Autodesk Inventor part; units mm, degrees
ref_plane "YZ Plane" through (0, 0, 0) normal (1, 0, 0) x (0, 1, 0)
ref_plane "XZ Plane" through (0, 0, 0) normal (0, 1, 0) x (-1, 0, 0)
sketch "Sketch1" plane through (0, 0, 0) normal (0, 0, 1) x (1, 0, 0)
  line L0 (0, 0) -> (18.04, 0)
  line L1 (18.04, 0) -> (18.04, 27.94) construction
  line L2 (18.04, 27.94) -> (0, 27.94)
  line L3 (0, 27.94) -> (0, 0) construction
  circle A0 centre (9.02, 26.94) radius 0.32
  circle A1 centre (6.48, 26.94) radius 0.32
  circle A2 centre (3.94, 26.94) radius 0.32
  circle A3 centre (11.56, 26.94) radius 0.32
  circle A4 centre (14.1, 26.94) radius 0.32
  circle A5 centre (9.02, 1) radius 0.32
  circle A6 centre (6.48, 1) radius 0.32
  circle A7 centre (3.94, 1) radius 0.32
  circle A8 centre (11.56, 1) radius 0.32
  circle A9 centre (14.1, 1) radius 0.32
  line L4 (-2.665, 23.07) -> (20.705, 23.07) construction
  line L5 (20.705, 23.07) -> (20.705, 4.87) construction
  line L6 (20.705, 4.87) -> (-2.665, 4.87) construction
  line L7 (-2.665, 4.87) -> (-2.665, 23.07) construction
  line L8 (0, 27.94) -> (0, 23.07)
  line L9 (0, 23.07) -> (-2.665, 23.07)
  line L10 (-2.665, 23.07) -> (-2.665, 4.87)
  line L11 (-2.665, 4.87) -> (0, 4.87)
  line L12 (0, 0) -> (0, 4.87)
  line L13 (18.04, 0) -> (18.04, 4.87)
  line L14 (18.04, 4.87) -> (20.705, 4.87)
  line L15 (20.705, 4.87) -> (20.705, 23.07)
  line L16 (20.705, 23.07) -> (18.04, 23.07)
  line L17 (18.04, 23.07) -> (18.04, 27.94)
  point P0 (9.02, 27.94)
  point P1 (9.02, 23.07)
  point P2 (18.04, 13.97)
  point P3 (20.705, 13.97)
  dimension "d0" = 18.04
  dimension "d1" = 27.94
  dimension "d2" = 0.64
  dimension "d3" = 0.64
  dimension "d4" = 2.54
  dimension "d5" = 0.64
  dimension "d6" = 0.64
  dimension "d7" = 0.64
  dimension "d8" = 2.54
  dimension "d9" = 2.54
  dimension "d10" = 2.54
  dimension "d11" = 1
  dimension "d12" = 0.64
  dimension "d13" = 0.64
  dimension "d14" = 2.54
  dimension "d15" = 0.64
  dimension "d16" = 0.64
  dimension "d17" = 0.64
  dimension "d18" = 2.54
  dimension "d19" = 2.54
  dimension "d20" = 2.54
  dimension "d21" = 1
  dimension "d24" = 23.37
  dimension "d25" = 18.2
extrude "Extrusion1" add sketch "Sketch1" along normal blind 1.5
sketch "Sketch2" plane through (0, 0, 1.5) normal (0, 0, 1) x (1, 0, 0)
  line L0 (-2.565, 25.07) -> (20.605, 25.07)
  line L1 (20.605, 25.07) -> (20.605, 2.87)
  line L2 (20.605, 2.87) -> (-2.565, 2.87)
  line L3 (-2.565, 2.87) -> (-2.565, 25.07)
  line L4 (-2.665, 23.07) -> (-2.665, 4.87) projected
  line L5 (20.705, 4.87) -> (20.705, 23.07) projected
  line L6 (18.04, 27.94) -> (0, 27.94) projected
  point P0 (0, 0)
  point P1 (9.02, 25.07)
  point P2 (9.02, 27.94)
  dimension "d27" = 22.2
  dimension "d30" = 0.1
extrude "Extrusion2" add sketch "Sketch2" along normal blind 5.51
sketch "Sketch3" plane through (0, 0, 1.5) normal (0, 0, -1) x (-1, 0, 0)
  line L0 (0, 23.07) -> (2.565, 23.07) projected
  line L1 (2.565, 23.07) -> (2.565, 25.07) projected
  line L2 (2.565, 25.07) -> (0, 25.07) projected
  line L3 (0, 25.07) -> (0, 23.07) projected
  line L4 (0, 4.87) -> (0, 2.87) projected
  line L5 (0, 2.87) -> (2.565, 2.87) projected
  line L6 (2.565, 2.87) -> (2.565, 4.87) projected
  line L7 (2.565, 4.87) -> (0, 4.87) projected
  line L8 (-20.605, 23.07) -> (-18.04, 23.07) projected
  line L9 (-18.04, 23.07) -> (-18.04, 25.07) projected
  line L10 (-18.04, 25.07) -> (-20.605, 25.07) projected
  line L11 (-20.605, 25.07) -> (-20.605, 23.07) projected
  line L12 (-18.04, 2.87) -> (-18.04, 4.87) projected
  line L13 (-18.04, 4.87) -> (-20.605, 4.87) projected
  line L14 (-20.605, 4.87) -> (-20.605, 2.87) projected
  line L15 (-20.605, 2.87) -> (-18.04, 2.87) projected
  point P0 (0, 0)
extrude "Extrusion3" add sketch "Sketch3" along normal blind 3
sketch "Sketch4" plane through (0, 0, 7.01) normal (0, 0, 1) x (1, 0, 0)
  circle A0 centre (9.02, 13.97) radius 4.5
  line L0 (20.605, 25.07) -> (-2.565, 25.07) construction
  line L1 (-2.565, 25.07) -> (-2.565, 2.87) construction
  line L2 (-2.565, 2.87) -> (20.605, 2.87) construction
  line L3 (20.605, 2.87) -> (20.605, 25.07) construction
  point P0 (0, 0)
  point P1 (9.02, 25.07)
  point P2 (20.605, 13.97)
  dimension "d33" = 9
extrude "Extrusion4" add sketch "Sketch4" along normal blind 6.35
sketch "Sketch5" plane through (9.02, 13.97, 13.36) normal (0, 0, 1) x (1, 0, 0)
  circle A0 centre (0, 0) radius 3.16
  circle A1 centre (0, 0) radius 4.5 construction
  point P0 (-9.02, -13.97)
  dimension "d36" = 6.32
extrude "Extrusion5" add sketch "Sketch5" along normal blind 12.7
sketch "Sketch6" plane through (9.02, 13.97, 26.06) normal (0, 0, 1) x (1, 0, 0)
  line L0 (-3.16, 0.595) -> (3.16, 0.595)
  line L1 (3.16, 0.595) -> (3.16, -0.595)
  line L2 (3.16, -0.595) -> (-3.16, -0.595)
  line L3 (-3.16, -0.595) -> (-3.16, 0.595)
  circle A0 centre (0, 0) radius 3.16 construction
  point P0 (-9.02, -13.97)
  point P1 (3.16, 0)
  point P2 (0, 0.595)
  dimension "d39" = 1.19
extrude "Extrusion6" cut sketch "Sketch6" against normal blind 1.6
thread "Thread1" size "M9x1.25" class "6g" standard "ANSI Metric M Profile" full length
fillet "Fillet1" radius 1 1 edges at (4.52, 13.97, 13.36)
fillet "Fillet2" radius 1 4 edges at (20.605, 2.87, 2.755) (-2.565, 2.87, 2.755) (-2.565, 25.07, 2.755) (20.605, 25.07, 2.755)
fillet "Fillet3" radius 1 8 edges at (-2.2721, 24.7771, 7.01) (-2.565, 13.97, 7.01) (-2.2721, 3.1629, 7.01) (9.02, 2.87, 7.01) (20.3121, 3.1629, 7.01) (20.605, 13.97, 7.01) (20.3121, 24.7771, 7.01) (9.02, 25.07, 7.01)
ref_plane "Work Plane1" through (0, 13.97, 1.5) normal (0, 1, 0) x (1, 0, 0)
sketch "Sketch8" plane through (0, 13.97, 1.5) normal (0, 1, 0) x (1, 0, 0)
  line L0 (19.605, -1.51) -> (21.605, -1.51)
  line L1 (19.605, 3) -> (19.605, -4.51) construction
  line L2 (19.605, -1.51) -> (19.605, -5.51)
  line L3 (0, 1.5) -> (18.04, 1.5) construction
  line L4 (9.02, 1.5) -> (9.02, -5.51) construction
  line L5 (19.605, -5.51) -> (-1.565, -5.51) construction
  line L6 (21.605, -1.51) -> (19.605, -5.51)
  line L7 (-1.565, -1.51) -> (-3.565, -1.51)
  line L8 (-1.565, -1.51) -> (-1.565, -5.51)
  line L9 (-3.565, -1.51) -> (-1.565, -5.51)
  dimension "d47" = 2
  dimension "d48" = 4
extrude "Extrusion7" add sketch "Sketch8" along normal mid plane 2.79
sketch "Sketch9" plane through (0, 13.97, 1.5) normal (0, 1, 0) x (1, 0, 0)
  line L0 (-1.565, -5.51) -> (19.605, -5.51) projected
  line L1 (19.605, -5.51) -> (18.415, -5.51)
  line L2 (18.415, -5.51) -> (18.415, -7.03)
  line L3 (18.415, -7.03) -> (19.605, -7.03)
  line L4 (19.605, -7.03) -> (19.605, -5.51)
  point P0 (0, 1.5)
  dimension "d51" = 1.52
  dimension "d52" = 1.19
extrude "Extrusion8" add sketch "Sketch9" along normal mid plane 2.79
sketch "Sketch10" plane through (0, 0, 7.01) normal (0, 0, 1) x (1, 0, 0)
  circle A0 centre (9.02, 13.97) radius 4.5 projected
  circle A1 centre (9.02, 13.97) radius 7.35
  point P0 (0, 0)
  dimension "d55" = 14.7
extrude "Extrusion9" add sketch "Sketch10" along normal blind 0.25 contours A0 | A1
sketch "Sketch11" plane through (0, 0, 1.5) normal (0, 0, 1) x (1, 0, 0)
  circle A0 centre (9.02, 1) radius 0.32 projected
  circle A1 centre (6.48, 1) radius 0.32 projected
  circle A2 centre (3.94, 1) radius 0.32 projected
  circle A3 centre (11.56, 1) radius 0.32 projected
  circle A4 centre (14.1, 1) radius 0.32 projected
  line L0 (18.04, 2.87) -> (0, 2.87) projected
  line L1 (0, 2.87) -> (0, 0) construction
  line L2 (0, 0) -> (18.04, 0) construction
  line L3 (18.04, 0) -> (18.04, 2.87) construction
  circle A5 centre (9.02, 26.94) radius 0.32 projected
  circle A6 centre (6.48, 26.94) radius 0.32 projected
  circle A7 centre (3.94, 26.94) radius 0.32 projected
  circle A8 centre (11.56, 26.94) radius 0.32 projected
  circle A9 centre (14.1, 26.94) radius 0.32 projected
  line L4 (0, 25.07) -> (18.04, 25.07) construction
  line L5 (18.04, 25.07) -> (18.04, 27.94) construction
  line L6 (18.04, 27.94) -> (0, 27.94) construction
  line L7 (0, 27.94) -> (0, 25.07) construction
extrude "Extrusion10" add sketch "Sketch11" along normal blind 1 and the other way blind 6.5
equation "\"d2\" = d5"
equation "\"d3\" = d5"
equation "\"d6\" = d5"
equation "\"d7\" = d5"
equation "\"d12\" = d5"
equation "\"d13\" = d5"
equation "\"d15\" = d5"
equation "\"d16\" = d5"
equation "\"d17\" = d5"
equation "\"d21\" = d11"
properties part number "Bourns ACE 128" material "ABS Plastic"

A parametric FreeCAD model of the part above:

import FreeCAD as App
import Part
import Sketcher

V = App.Vector


def edges_at(feature, points):
    """Names of the edges that pass closest to the given points."""
    edges = feature.Shape.Edges
    near = lambda p: min(range(len(edges)), key=lambda i: edges[i].distToShape(Part.Vertex(*p))[0])
    return sorted({f"Edge{near(p) + 1}" for p in points})

doc = App.newDocument("Part")
params = doc.addObject("Spreadsheet::Sheet", "Params")
for row, (alias, value) in enumerate([
    ("sketch1_diameter", "0.64 mm"),
    ("sketch1_height", "18.2 mm"),
    ("sketch1_width", "18.04 mm"),
    ("pad1_length", "1.5 mm"),
    ("sketch2_height", "22.2 mm"),
    ("sketch2_width", "23.17 mm"),
    ("pad2_length", "5.51 mm"),
    ("sketch3_height", "2 mm"),
    ("pad3_length", "3 mm"),
    ("sketch4_diameter", "9 mm"),
    ("pad4_length", "6.35 mm"),
    ("sketch5_diameter", "6.32 mm"),
    ("pad5_length", "12.7 mm"),
    ("sketch6_height", "1.19 mm"),
    ("sketch6_width", "6.32 mm"),
    ("pocket1_length", "1.6 mm"),
    ("fillet_radius", "1 mm"),
    ("fillet2_radius", "1 mm"),
    ("fillet3_radius", "1 mm"),
    ("sketch7_width", "2 mm"),
    ("sketch7_height", "4 mm"),
    ("pad6_length", "2.79 mm"),
    ("sketch8_width", "1.19 mm"),
    ("sketch8_height", "1.52 mm"),
    ("pad7_length", "2.79 mm"),
    ("sketch9_diameter", "14.7 mm"),
    ("pad8_length", "0.25 mm"),
    ("sketch10_diameter", "0.64 mm"),
    ("pad9_length", "1 mm"),
    ("pad9_length2", "6.5 mm"),
], start=1):
    params.set(f"A{row}", alias)
    params.set(f"B{row}", "=" + value)
    params.setAlias(f"B{row}", alias)

body = doc.addObject("PartDesign::Body", "Body")

sketch1 = doc.addObject("Sketcher::SketchObject", "Sketch")
body.addObject(sketch1)
sketch1.AttachmentSupport = (doc.XY_Plane, [""])
sketch1.MapMode = "FlatFace"
sketch1.addGeometry([
    Part.LineSegment(V(0, 4.87, 0), V(0, 0, 0)),
    Part.LineSegment(V(0, 0, 0), V(18.04, 0, 0)),
    Part.LineSegment(V(18.04, 0, 0), V(18.04, 4.87, 0)),
    Part.LineSegment(V(18.04, 4.87, 0), V(20.705, 4.87, 0)),
    Part.LineSegment(V(20.705, 4.87, 0), V(20.705, 23.07, 0)),
    Part.LineSegment(V(20.705, 23.07, 0), V(18.04, 23.07, 0)),
    Part.LineSegment(V(18.04, 23.07, 0), V(18.04, 27.94, 0)),
    Part.LineSegment(V(18.04, 27.94, 0), V(0, 27.94, 0)),
    Part.LineSegment(V(0, 27.94, 0), V(0, 23.07, 0)),
    Part.LineSegment(V(0, 23.07, 0), V(-2.665, 23.07, 0)),
    Part.LineSegment(V(-2.665, 23.07, 0), V(-2.665, 4.87, 0)),
    Part.LineSegment(V(-2.665, 4.87, 0), V(0, 4.87, 0)),
    Part.Circle(V(3.94, 1, 0), V(0, 0, 1), 0.32),
    Part.Circle(V(6.48, 1, 0), V(0, 0, 1), 0.32),
    Part.Circle(V(9.02, 1, 0), V(0, 0, 1), 0.32),
    Part.Circle(V(11.56, 1, 0), V(0, 0, 1), 0.32),
    Part.Circle(V(14.1, 1, 0), V(0, 0, 1), 0.32),
    Part.Circle(V(3.94, 26.94, 0), V(0, 0, 1), 0.32),
    Part.Circle(V(6.48, 26.94, 0), V(0, 0, 1), 0.32),
    Part.Circle(V(9.02, 26.94, 0), V(0, 0, 1), 0.32),
    Part.Circle(V(11.56, 26.94, 0), V(0, 0, 1), 0.32),
    Part.Circle(V(14.1, 26.94, 0), V(0, 0, 1), 0.32),
], False)
sketch1.addConstraint([
    Sketcher.Constraint("Coincident", 0, 2, 1, 1),
    Sketcher.Constraint("Coincident", 1, 2, 2, 1),
    Sketcher.Constraint("Coincident", 2, 2, 3, 1),
    Sketcher.Constraint("Coincident", 3, 2, 4, 1),
    Sketcher.Constraint("Coincident", 4, 2, 5, 1),
    Sketcher.Constraint("Coincident", 5, 2, 6, 1),
    Sketcher.Constraint("Coincident", 6, 2, 7, 1),
    Sketcher.Constraint("Coincident", 7, 2, 8, 1),
    Sketcher.Constraint("Coincident", 8, 2, 9, 1),
    Sketcher.Constraint("Coincident", 9, 2, 10, 1),
    Sketcher.Constraint("Coincident", 10, 2, 11, 1),
    Sketcher.Constraint("Coincident", 11, 2, 0, 1),
    Sketcher.Constraint("Vertical", 0),
    Sketcher.Constraint("Horizontal", 1),
    Sketcher.Constraint("Vertical", 2),
    Sketcher.Constraint("Horizontal", 3),
    Sketcher.Constraint("Vertical", 4),
    Sketcher.Constraint("Horizontal", 5),
    Sketcher.Constraint("Vertical", 6),
    Sketcher.Constraint("Horizontal", 7),
    Sketcher.Constraint("Vertical", 8),
    Sketcher.Constraint("Horizontal", 9),
    Sketcher.Constraint("Vertical", 10),
    Sketcher.Constraint("Horizontal", 11),
    Sketcher.Constraint("Coincident", 0, 2, -1, 1),
    Sketcher.Constraint("Equal", 12, 13),
    Sketcher.Constraint("Equal", 13, 14),
    Sketcher.Constraint("Equal", 14, 15),
    Sketcher.Constraint("Equal", 15, 16),
    Sketcher.Constraint("Equal", 16, 17),
    Sketcher.Constraint("Equal", 17, 18),
    Sketcher.Constraint("Equal", 18, 19),
    Sketcher.Constraint("Equal", 19, 20),
    Sketcher.Constraint("Equal", 20, 21),
    Sketcher.Constraint("PointOnObject", 7, 2, -2),
    Sketcher.Constraint("Horizontal", 12, 3, 13, 3),
    Sketcher.Constraint("Horizontal", 13, 3, 14, 3),
    Sketcher.Constraint("Horizontal", 14, 3, 15, 3),
    Sketcher.Constraint("Horizontal", 15, 3, 16, 3),
    Sketcher.Constraint("Horizontal", 17, 3, 18, 3),
    Sketcher.Constraint("Horizontal", 18, 3, 19, 3),
    Sketcher.Constraint("Horizontal", 19, 3, 20, 3),
    Sketcher.Constraint("Horizontal", 20, 3, 21, 3),
    Sketcher.Constraint("Horizontal", 5, 2, 8, 2),
    Sketcher.Constraint("Horizontal", 3, 2, 10, 2),
    Sketcher.Constraint("Vertical", 12, 3, 17, 3),
    Sketcher.Constraint("Vertical", 13, 3, 18, 3),
    Sketcher.Constraint("Vertical", 14, 3, 19, 3),
    Sketcher.Constraint("Vertical", 15, 3, 20, 3),
    Sketcher.Constraint("Vertical", 16, 3, 21, 3),
    Sketcher.Constraint("Vertical", 2, 2, 5, 2),
    Sketcher.Constraint("Equal", 5, 9),
    Sketcher.Constraint("Equal", 2, 6),
    Sketcher.Constraint("Diameter", 12, 0.64),
    Sketcher.Constraint("DistanceY", 4, 1, 4, 2, 18.2),
    Sketcher.Constraint("DistanceY", -1, 1, 12, 3, 1.0),
    Sketcher.Constraint("DistanceY", 21, 3, 6, 2, 1.0),
    Sketcher.Constraint("DistanceX", 1, 1, 1, 2, 18.04),
    Sketcher.Constraint("DistanceY", -1, 1, 6, 2, 27.94),
    Sketcher.Constraint("DistanceX", 12, 3, 13, 3, 2.54),
    Sketcher.Constraint("DistanceX", 13, 3, 14, 3, 2.54),
    Sketcher.Constraint("DistanceX", 14, 3, 15, 3, 2.54),
    Sketcher.Constraint("DistanceX", 15, 3, 16, 3, 2.54),
    Sketcher.Constraint("DistanceX", -1, 1, 16, 3, 14.1),
    Sketcher.Constraint("DistanceX", 3, 1, 3, 2, 2.665),
])
sketch1.setExpression("Constraints[53]", "Params.sketch1_diameter")
sketch1.setExpression("Constraints[54]", "Params.sketch1_height")
sketch1.setExpression("Constraints[57]", "Params.sketch1_width")
pad1 = doc.addObject("PartDesign::Pad", "Pad")
body.addObject(pad1)
pad1.Profile = sketch1
pad1.setExpression("Length", "Params.pad1_length")

sketch2 = doc.addObject("Sketcher::SketchObject", "Sketch001")
body.addObject(sketch2)
sketch2.AttachmentSupport = (doc.XY_Plane, [""])
sketch2.MapMode = "FlatFace"
sketch2.AttachmentOffset = App.Placement(V(0, 0, 1.5), App.Rotation())
sketch2.addGeometry([
    Part.LineSegment(V(20.605, 25.07, 0), V(-2.565, 25.07, 0)),
    Part.LineSegment(V(-2.565, 25.07, 0), V(-2.565, 2.87, 0)),
    Part.LineSegment(V(-2.565, 2.87, 0), V(20.605, 2.87, 0)),
    Part.LineSegment(V(20.605, 2.87, 0), V(20.605, 25.07, 0)),
], False)
sketch2.addConstraint([
    Sketcher.Constraint("Coincident", 0, 2, 1, 1),
    Sketcher.Constraint("Coincident", 1, 2, 2, 1),
    Sketcher.Constraint("Coincident", 2, 2, 3, 1),
    Sketcher.Constraint("Coincident", 3, 2, 0, 1),
    Sketcher.Constraint("Horizontal", 0),
    Sketcher.Constraint("Vertical", 1),
    Sketcher.Constraint("Horizontal", 2),
    Sketcher.Constraint("Vertical", 3),
    Sketcher.Constraint("DistanceY", 1, 2, 1, 1, 22.2),
    Sketcher.Constraint("DistanceX", 0, 2, 0, 1, 23.17),
    Sketcher.Constraint("DistanceY", -1, 1, 0, 2, 25.07),
    Sketcher.Constraint("DistanceX", 0, 2, -1, 1, 2.565),
])
sketch2.setExpression("Constraints[8]", "Params.sketch2_height")
sketch2.setExpression("Constraints[9]", "Params.sketch2_width")
pad2 = doc.addObject("PartDesign::Pad", "Pad001")
body.addObject(pad2)
pad2.Profile = sketch2
pad2.setExpression("Length", "Params.pad2_length")

sketch3 = doc.addObject("Sketcher::SketchObject", "Sketch002")
body.addObject(sketch3)
sketch3.AttachmentSupport = (doc.XY_Plane, [""])
sketch3.MapMode = "FlatFace"
sketch3.AttachmentOffset = App.Placement(V(0, 0, 1.5), App.Rotation())
sketch3.addGeometry([
    Part.LineSegment(V(0, 25.07, 0), V(0, 23.07, 0)),
    Part.LineSegment(V(0, 23.07, 0), V(-2.565, 23.07, 0)),
    Part.LineSegment(V(-2.565, 23.07, 0), V(-2.565, 25.07, 0)),
    Part.LineSegment(V(-2.565, 25.07, 0), V(0, 25.07, 0)),
    Part.LineSegment(V(-2.565, 4.87, 0), V(0, 4.87, 0)),
    Part.LineSegment(V(0, 4.87, 0), V(0, 2.87, 0)),
    Part.LineSegment(V(0, 2.87, 0), V(-2.565, 2.87, 0)),
    Part.LineSegment(V(-2.565, 2.87, 0), V(-2.565, 4.87, 0)),
    Part.LineSegment(V(20.605, 25.07, 0), V(20.605, 23.07, 0)),
    Part.LineSegment(V(20.605, 23.07, 0), V(18.04, 23.07, 0)),
    Part.LineSegment(V(18.04, 23.07, 0), V(18.04, 25.07, 0)),
    Part.LineSegment(V(18.04, 25.07, 0), V(20.605, 25.07, 0)),
    Part.LineSegment(V(20.605, 2.87, 0), V(18.04, 2.87, 0)),
    Part.LineSegment(V(18.04, 2.87, 0), V(18.04, 4.87, 0)),
    Part.LineSegment(V(18.04, 4.87, 0), V(20.605, 4.87, 0)),
    Part.LineSegment(V(20.605, 4.87, 0), V(20.605, 2.87, 0)),
], False)
sketch3.addConstraint([
    Sketcher.Constraint("Coincident", 0, 2, 1, 1),
    Sketcher.Constraint("Coincident", 1, 2, 2, 1),
    Sketcher.Constraint("Coincident", 2, 2, 3, 1),
    Sketcher.Constraint("Coincident", 3, 2, 0, 1),
    Sketcher.Constraint("Coincident", 4, 2, 5, 1),
    Sketcher.Constraint("Coincident", 5, 2, 6, 1),
    Sketcher.Constraint("Coincident", 6, 2, 7, 1),
    Sketcher.Constraint("Coincident", 7, 2, 4, 1),
    Sketcher.Constraint("Coincident", 8, 2, 9, 1),
    Sketcher.Constraint("Coincident", 9, 2, 10, 1),
    Sketcher.Constraint("Coincident", 10, 2, 11, 1),
    Sketcher.Constraint("Coincident", 11, 2, 8, 1),
    Sketcher.Constraint("Coincident", 12, 2, 13, 1),
    Sketcher.Constraint("Coincident", 13, 2, 14, 1),
    Sketcher.Constraint("Coincident", 14, 2, 15, 1),
    Sketcher.Constraint("Coincident", 15, 2, 12, 1),
    Sketcher.Constraint("Vertical", 0),
    Sketcher.Constraint("Horizontal", 1),
    Sketcher.Constraint("Vertical", 2),
    Sketcher.Constraint("Horizontal", 3),
    Sketcher.Constraint("Horizontal", 4),
    Sketcher.Constraint("Vertical", 5),
    Sketcher.Constraint("Horizontal", 6),
    Sketcher.Constraint("Vertical", 7),
    Sketcher.Constraint("Vertical", 8),
    Sketcher.Constraint("Horizontal", 9),
    Sketcher.Constraint("Vertical", 10),
    Sketcher.Constraint("Horizontal", 11),
    Sketcher.Constraint("Horizontal", 12),
    Sketcher.Constraint("Vertical", 13),
    Sketcher.Constraint("Horizontal", 14),
    Sketcher.Constraint("Vertical", 15),
    Sketcher.Constraint("PointOnObject", 0, 2, -2),
    Sketcher.Constraint("PointOnObject", 4, 2, -2),
    Sketcher.Constraint("Horizontal", 1, 2, 8, 2),
    Sketcher.Constraint("Horizontal", 3, 2, 10, 2),
    Sketcher.Constraint("Horizontal", 6, 2, 12, 2),
    Sketcher.Constraint("Horizontal", 7, 2, 13, 2),
    Sketcher.Constraint("Vertical", 2, 2, 6, 2),
    Sketcher.Constraint("Vertical", 10, 2, 12, 2),
    Sketcher.Constraint("Vertical", 11, 2, 14, 2),
    Sketcher.Constraint("Equal", 6, 9),
    Sketcher.Constraint("Equal", 2, 5),
    Sketcher.Constraint("DistanceY", 0, 2, 0, 1, 2.0),
    Sketcher.Constraint("DistanceY", 4, 2, 0, 2, 18.2),
    Sketcher.Constraint("DistanceX", 1, 2, 1, 1, 2.565),
    Sketcher.Constraint("DistanceY", -1, 1, 0, 2, 23.07),
    Sketcher.Constraint("DistanceX", -1, 1, 9, 2, 18.04),
])
sketch3.setExpression("Constraints[43]", "Params.sketch3_height")
pad3 = doc.addObject("PartDesign::Pad", "Pad002")
body.addObject(pad3)
pad3.Profile = sketch3
pad3.setExpression("Length", "Params.pad3_length")
pad3.Reversed = True

sketch4 = doc.addObject("Sketcher::SketchObject", "Sketch003")
body.addObject(sketch4)
sketch4.AttachmentSupport = (doc.XY_Plane, [""])
sketch4.MapMode = "FlatFace"
sketch4.AttachmentOffset = App.Placement(V(0, 0, 7.01), App.Rotation())
sketch4.addGeometry(Part.Circle(V(9.02, 13.97, 0), V(0, 0, 1), 4.5), False)
sketch4.addConstraint([
    Sketcher.Constraint("Diameter", 0, 9.0),
    Sketcher.Constraint("DistanceX", -1, 1, 0, 3, 9.02),
    Sketcher.Constraint("DistanceY", -1, 1, 0, 3, 13.97),
])
sketch4.setExpression("Constraints[0]", "Params.sketch4_diameter")
pad4 = doc.addObject("PartDesign::Pad", "Pad003")
body.addObject(pad4)
pad4.Profile = sketch4
pad4.setExpression("Length", "Params.pad4_length")

sketch5 = doc.addObject("Sketcher::SketchObject", "Sketch004")
body.addObject(sketch5)
sketch5.AttachmentSupport = (doc.XY_Plane, [""])
sketch5.MapMode = "FlatFace"
sketch5.AttachmentOffset = App.Placement(V(0, 0, 13.36), App.Rotation())
sketch5.addGeometry(Part.Circle(V(9.02, 13.97, 0), V(0, 0, 1), 3.16), False)
sketch5.addConstraint([
    Sketcher.Constraint("Diameter", 0, 6.32),
    Sketcher.Constraint("DistanceX", -1, 1, 0, 3, 9.02),
    Sketcher.Constraint("DistanceY", -1, 1, 0, 3, 13.97),
])
sketch5.setExpression("Constraints[0]", "Params.sketch5_diameter")
pad5 = doc.addObject("PartDesign::Pad", "Pad004")
body.addObject(pad5)
pad5.Profile = sketch5
pad5.setExpression("Length", "Params.pad5_length")

sketch6 = doc.addObject("Sketcher::SketchObject", "Sketch005")
body.addObject(sketch6)
sketch6.AttachmentSupport = (doc.XY_Plane, [""])
sketch6.MapMode = "FlatFace"
sketch6.AttachmentOffset = App.Placement(V(0, 0, 26.06), App.Rotation())
sketch6.addGeometry([
    Part.LineSegment(V(12.18, 14.565, 0), V(5.86, 14.565, 0)),
    Part.LineSegment(V(5.86, 14.565, 0), V(5.86, 13.375, 0)),
    Part.LineSegment(V(5.86, 13.375, 0), V(12.18, 13.375, 0)),
    Part.LineSegment(V(12.18, 13.375, 0), V(12.18, 14.565, 0)),
], False)
sketch6.addConstraint([
    Sketcher.Constraint("Coincident", 0, 2, 1, 1),
    Sketcher.Constraint("Coincident", 1, 2, 2, 1),
    Sketcher.Constraint("Coincident", 2, 2, 3, 1),
    Sketcher.Constraint("Coincident", 3, 2, 0, 1),
    Sketcher.Constraint("Horizontal", 0),
    Sketcher.Constraint("Vertical", 1),
    Sketcher.Constraint("Horizontal", 2),
    Sketcher.Constraint("Vertical", 3),
    Sketcher.Constraint("DistanceY", 1, 2, 1, 1, 1.19),
    Sketcher.Constraint("DistanceX", 0, 2, 0, 1, 6.32),
    Sketcher.Constraint("DistanceX", -1, 1, 0, 2, 5.86),
    Sketcher.Constraint("DistanceY", -1, 1, 0, 2, 14.565),
])
sketch6.setExpression("Constraints[8]", "Params.sketch6_height")
sketch6.setExpression("Constraints[9]", "Params.sketch6_width")
pocket1 = doc.addObject("PartDesign::Pocket", "Pocket")
body.addObject(pocket1)
pocket1.Profile = sketch6
pocket1.setExpression("Length", "Params.pocket1_length")
doc.recompute()

fillet = doc.addObject("PartDesign::Fillet", "Fillet")
body.addObject(fillet)
fillet.Base = (pocket1, edges_at(pocket1, [(4.52, 13.97, 13.36)]))
fillet.setExpression("Radius", "Params.fillet_radius")
doc.recompute()

fillet2 = doc.addObject("PartDesign::Fillet", "Fillet001")
body.addObject(fillet2)
fillet2.Base = (fillet, edges_at(fillet, [
    (20.605, 2.87, 2.755),
    (-2.565, 2.87, 2.755),
    (-2.565, 25.07, 2.755),
    (20.605, 25.07, 2.755),
]))
fillet2.setExpression("Radius", "Params.fillet2_radius")
doc.recompute()

fillet3 = doc.addObject("PartDesign::Fillet", "Fillet002")
body.addObject(fillet3)
fillet3.Base = (fillet2, edges_at(fillet2, [
    (-2.272, 24.777, 7.01),
    (-2.565, 13.97, 7.01),
    (-2.272, 3.163, 7.01),
    (9.02, 2.87, 7.01),
    (20.312, 3.163, 7.01),
    (20.605, 13.97, 7.01),
    (20.312, 24.777, 7.01),
    (9.02, 25.07, 7.01),
]))
fillet3.setExpression("Radius", "Params.fillet3_radius")

sketch7 = doc.addObject("Sketcher::SketchObject", "Sketch006")
body.addObject(sketch7)
sketch7.AttachmentSupport = (doc.XZ_Plane, [""])
sketch7.MapMode = "FlatFace"
sketch7.AttachmentOffset = App.Placement(V(0, 0, -13.97), App.Rotation())
sketch7.addGeometry([
    Part.LineSegment(V(21.605, 3.01, 0), V(19.605, 3.01, 0)),
    Part.LineSegment(V(19.605, 3.01, 0), V(19.605, 7.01, 0)),
    Part.LineSegment(V(19.605, 7.01, 0), V(21.605, 3.01, 0)),
    Part.LineSegment(V(-1.565, 7.01, 0), V(-1.565, 3.01, 0)),
    Part.LineSegment(V(-1.565, 3.01, 0), V(-3.565, 3.01, 0)),
    Part.LineSegment(V(-3.565, 3.01, 0), V(-1.565, 7.01, 0)),
], False)
sketch7.addConstraint([
    Sketcher.Constraint("Coincident", 0, 2, 1, 1),
    Sketcher.Constraint("Coincident", 1, 2, 2, 1),
    Sketcher.Constraint("Coincident", 2, 2, 0, 1),
    Sketcher.Constraint("Coincident", 3, 2, 4, 1),
    Sketcher.Constraint("Coincident", 4, 2, 5, 1),
    Sketcher.Constraint("Coincident", 5, 2, 3, 1),
    Sketcher.Constraint("Horizontal", 0),
    Sketcher.Constraint("Vertical", 1),
    Sketcher.Constraint("Vertical", 3),
    Sketcher.Constraint("Horizontal", 4),
    Sketcher.Constraint("Horizontal", 2, 2, 3, 2),
    Sketcher.Constraint("Horizontal", 1, 2, 5, 2),
    Sketcher.Constraint("Equal", 0, 4),
    Sketcher.Constraint("DistanceX", 0, 2, 0, 1, 2.0),
    Sketcher.Constraint("DistanceY", 1, 1, 1, 2, 4.0),
    Sketcher.Constraint("DistanceY", -1, 1, 0, 2, 3.01),
    Sketcher.Constraint("DistanceX", 3, 2, 0, 2, 21.17),
    Sketcher.Constraint("DistanceX", -1, 1, 0, 2, 19.605),
])
sketch7.setExpression("Constraints[13]", "Params.sketch7_width")
sketch7.setExpression("Constraints[14]", "Params.sketch7_height")
pad6 = doc.addObject("PartDesign::Pad", "Pad005")
body.addObject(pad6)
pad6.Profile = sketch7
pad6.setExpression("Length", "Params.pad6_length")
pad6.Midplane = True

sketch8 = doc.addObject("Sketcher::SketchObject", "Sketch007")
body.addObject(sketch8)
sketch8.AttachmentSupport = (doc.XZ_Plane, [""])
sketch8.MapMode = "FlatFace"
sketch8.AttachmentOffset = App.Placement(V(0, 0, -13.97), App.Rotation())
sketch8.addGeometry([
    Part.LineSegment(V(19.605, 7.01, 0), V(18.415, 7.01, 0)),
    Part.LineSegment(V(18.415, 7.01, 0), V(18.415, 8.53, 0)),
    Part.LineSegment(V(18.415, 8.53, 0), V(19.605, 8.53, 0)),
    Part.LineSegment(V(19.605, 8.53, 0), V(19.605, 7.01, 0)),
], False)
sketch8.addConstraint([
    Sketcher.Constraint("Coincident", 0, 2, 1, 1),
    Sketcher.Constraint("Coincident", 1, 2, 2, 1),
    Sketcher.Constraint("Coincident", 2, 2, 3, 1),
    Sketcher.Constraint("Coincident", 3, 2, 0, 1),
    Sketcher.Constraint("Horizontal", 0),
    Sketcher.Constraint("Vertical", 1),
    Sketcher.Constraint("Horizontal", 2),
    Sketcher.Constraint("Vertical", 3),
    Sketcher.Constraint("DistanceX", 0, 2, 0, 1, 1.19),
    Sketcher.Constraint("DistanceY", 1, 1, 1, 2, 1.52),
    Sketcher.Constraint("DistanceY", -1, 1, 0, 2, 7.01),
    Sketcher.Constraint("DistanceX", -1, 1, 0, 2, 18.415),
])
sketch8.setExpression("Constraints[8]", "Params.sketch8_width")
sketch8.setExpression("Constraints[9]", "Params.sketch8_height")
pad7 = doc.addObject("PartDesign::Pad", "Pad006")
body.addObject(pad7)
pad7.Profile = sketch8
pad7.setExpression("Length", "Params.pad7_length")
pad7.Midplane = True

sketch9 = doc.addObject("Sketcher::SketchObject", "Sketch008")
body.addObject(sketch9)
sketch9.AttachmentSupport = (doc.XY_Plane, [""])
sketch9.MapMode = "FlatFace"
sketch9.AttachmentOffset = App.Placement(V(0, 0, 7.01), App.Rotation())
sketch9.addGeometry(Part.Circle(V(9.02, 13.97, 0), V(0, 0, 1), 7.35), False)
sketch9.addConstraint([
    Sketcher.Constraint("Diameter", 0, 14.7),
    Sketcher.Constraint("DistanceX", -1, 1, 0, 3, 9.02),
    Sketcher.Constraint("DistanceY", -1, 1, 0, 3, 13.97),
])
sketch9.setExpression("Constraints[0]", "Params.sketch9_diameter")
pad8 = doc.addObject("PartDesign::Pad", "Pad007")
body.addObject(pad8)
pad8.Profile = sketch9
pad8.setExpression("Length", "Params.pad8_length")

sketch10 = doc.addObject("Sketcher::SketchObject", "Sketch009")
body.addObject(sketch10)
sketch10.AttachmentSupport = (doc.XY_Plane, [""])
sketch10.MapMode = "FlatFace"
sketch10.AttachmentOffset = App.Placement(V(0, 0, 1.5), App.Rotation())
sketch10.addGeometry([
    Part.Circle(V(9.02, 1, 0), V(0, 0, 1), 0.32),
    Part.Circle(V(6.48, 1, 0), V(0, 0, 1), 0.32),
    Part.Circle(V(3.94, 1, 0), V(0, 0, 1), 0.32),
    Part.Circle(V(11.56, 1, 0), V(0, 0, 1), 0.32),
    Part.Circle(V(14.1, 1, 0), V(0, 0, 1), 0.32),
    Part.Circle(V(9.02, 26.94, 0), V(0, 0, 1), 0.32),
    Part.Circle(V(6.48, 26.94, 0), V(0, 0, 1), 0.32),
    Part.Circle(V(3.94, 26.94, 0), V(0, 0, 1), 0.32),
    Part.Circle(V(11.56, 26.94, 0), V(0, 0, 1), 0.32),
    Part.Circle(V(14.1, 26.94, 0), V(0, 0, 1), 0.32),
], False)
sketch10.addConstraint([
    Sketcher.Constraint("Equal", 0, 1),
    Sketcher.Constraint("Equal", 1, 2),
    Sketcher.Constraint("Equal", 2, 3),
    Sketcher.Constraint("Equal", 3, 4),
    Sketcher.Constraint("Equal", 4, 5),
    Sketcher.Constraint("Equal", 5, 6),
    Sketcher.Constraint("Equal", 6, 7),
    Sketcher.Constraint("Equal", 7, 8),
    Sketcher.Constraint("Equal", 8, 9),
    Sketcher.Constraint("Horizontal", 0, 3, 1, 3),
    Sketcher.Constraint("Horizontal", 1, 3, 2, 3),
    Sketcher.Constraint("Horizontal", 2, 3, 3, 3),
    Sketcher.Constraint("Horizontal", 3, 3, 4, 3),
    Sketcher.Constraint("Horizontal", 5, 3, 6, 3),
    Sketcher.Constraint("Horizontal", 6, 3, 7, 3),
    Sketcher.Constraint("Horizontal", 7, 3, 8, 3),
    Sketcher.Constraint("Horizontal", 8, 3, 9, 3),
    Sketcher.Constraint("Vertical", 0, 3, 5, 3),
    Sketcher.Constraint("Vertical", 1, 3, 6, 3),
    Sketcher.Constraint("Vertical", 2, 3, 7, 3),
    Sketcher.Constraint("Vertical", 3, 3, 8, 3),
    Sketcher.Constraint("Vertical", 4, 3, 9, 3),
    Sketcher.Constraint("Diameter", 0, 0.64),
    Sketcher.Constraint("DistanceY", -1, 1, 0, 3, 1.0),
    Sketcher.Constraint("DistanceX", -1, 1, 4, 3, 14.1),
    Sketcher.Constraint("DistanceX", -1, 1, 0, 3, 9.02),
    Sketcher.Constraint("DistanceX", -1, 1, 1, 3, 6.48),
    Sketcher.Constraint("DistanceX", -1, 1, 2, 3, 3.94),
    Sketcher.Constraint("DistanceX", -1, 1, 3, 3, 11.56),
    Sketcher.Constraint("DistanceY", -1, 1, 5, 3, 26.94),
])
sketch10.setExpression("Constraints[22]", "Params.sketch10_diameter")
pad9 = doc.addObject("PartDesign::Pad", "Pad008")
body.addObject(pad9)
pad9.Profile = sketch10
pad9.Type = "TwoLengths"
pad9.setExpression("Length", "Params.pad9_length")
pad9.setExpression("Length2", "Params.pad9_length2")

doc.recompute()
